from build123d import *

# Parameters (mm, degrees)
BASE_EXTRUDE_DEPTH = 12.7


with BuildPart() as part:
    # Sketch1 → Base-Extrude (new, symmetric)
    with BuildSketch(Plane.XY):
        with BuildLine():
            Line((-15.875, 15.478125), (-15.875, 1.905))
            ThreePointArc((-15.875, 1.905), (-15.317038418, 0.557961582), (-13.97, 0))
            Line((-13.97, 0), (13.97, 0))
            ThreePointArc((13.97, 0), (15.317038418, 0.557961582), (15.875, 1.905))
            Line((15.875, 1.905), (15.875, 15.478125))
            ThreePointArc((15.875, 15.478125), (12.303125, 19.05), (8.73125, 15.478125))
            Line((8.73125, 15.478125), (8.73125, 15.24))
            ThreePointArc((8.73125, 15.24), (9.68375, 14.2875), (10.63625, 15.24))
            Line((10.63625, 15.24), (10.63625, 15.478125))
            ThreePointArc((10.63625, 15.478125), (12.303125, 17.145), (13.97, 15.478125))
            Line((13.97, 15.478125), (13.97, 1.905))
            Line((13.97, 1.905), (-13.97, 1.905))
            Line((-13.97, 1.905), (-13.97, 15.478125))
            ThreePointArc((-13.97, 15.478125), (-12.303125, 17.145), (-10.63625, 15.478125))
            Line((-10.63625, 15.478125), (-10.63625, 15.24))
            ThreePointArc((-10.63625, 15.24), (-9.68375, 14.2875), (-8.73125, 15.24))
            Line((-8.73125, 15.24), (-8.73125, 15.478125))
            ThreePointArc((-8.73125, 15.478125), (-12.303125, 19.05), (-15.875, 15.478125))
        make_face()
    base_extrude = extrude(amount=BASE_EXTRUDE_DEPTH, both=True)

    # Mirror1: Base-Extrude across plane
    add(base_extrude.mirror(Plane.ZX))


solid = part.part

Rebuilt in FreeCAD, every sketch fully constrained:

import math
import FreeCAD as App
import Part
import Sketcher
Q = App.Units.Quantity

doc = App.newDocument("Part")
body = doc.addObject("PartDesign::Body", "Body")

# Sketch on XY plane
sketch1 = body.newObject("Sketcher::SketchObject", "Sketch")
sketch1.AttachmentSupport = (doc.getObject("XY_Plane"), [""])
sketch1.MapMode = "FlatFace"
sketch1.addGeometry([
    Part.LineSegment(App.Vector(-15.88, 15.48, 0), App.Vector(-15.88, 1.91, 0)),  # 0
    Part.ArcOfCircle(Part.Circle(App.Vector(-13.97, 1.91, 0), App.Vector(0, 0, 1), 1.91), math.radians(-180), math.radians(-90)),  # 1
    Part.LineSegment(App.Vector(-13.97, 0, 0), App.Vector(13.97, 0, 0)),  # 2
    Part.ArcOfCircle(Part.Circle(App.Vector(13.97, 1.91, 0), App.Vector(0, 0, 1), 1.91), math.radians(-90), math.radians(0)),  # 3
    Part.LineSegment(App.Vector(15.88, 1.91, 0), App.Vector(15.88, 15.48, 0)),  # 4
    Part.ArcOfCircle(Part.Circle(App.Vector(12.3, 15.48, 0), App.Vector(0, 0, 1), 3.57), math.radians(0), math.radians(180)),  # 5
    Part.LineSegment(App.Vector(8.73, 15.48, 0), App.Vector(8.73, 15.24, 0)),  # 6
    Part.ArcOfCircle(Part.Circle(App.Vector(9.68, 15.24, 0), App.Vector(0, 0, 1), 0.95), math.radians(180), math.radians(360)),  # 7
    Part.LineSegment(App.Vector(10.64, 15.24, 0), App.Vector(10.64, 15.48, 0)),  # 8
    Part.ArcOfCircle(Part.Circle(App.Vector(12.3, 15.48, 0), App.Vector(0, 0, 1), 1.67), math.radians(0), math.radians(180)),  # 9
    Part.LineSegment(App.Vector(13.97, 15.48, 0), App.Vector(13.97, 1.91, 0)),  # 10
    Part.LineSegment(App.Vector(13.97, 1.91, 0), App.Vector(-13.97, 1.91, 0)),  # 11
    Part.LineSegment(App.Vector(-13.97, 1.91, 0), App.Vector(-13.97, 15.48, 0)),  # 12
    Part.ArcOfCircle(Part.Circle(App.Vector(-12.3, 15.48, 0), App.Vector(0, 0, 1), 1.67), math.radians(0), math.radians(180)),  # 13
    Part.LineSegment(App.Vector(-10.64, 15.48, 0), App.Vector(-10.64, 15.24, 0)),  # 14
    Part.ArcOfCircle(Part.Circle(App.Vector(-9.68, 15.24, 0), App.Vector(0, 0, 1), 0.95), math.radians(180), math.radians(360)),  # 15
    Part.LineSegment(App.Vector(-8.73, 15.24, 0), App.Vector(-8.73, 15.48, 0)),  # 16
    Part.ArcOfCircle(Part.Circle(App.Vector(-12.3, 15.48, 0), App.Vector(0, 0, 1), 3.57), math.radians(0), math.radians(180)),  # 17
], False)
sketch1.addConstraint([
    Sketcher.Constraint("Tangent", 0, 2, 1, 1),
    Sketcher.Constraint("Tangent", 1, 2, 2, 1),
    Sketcher.Constraint("Tangent", 2, 2, 3, 1),
    Sketcher.Constraint("Tangent", 3, 2, 4, 1),
    Sketcher.Constraint("Tangent", 4, 2, 5, 1),
    Sketcher.Constraint("Tangent", 5, 2, 6, 1),
    Sketcher.Constraint("Tangent", 6, 2, 7, 1),
    Sketcher.Constraint("Tangent", 7, 2, 8, 1),
    Sketcher.Constraint("Tangent", 8, 2, 9, 2),
    Sketcher.Constraint("Tangent", 9, 1, 10, 1),
    Sketcher.Constraint("Coincident", 10, 2, 11, 1),
    Sketcher.Constraint("Coincident", 11, 2, 12, 1),
    Sketcher.Constraint("Tangent", 12, 2, 13, 2),
    Sketcher.Constraint("Tangent", 13, 1, 14, 1),
    Sketcher.Constraint("Tangent", 14, 2, 15, 1),
    Sketcher.Constraint("Tangent", 15, 2, 16, 1),
    Sketcher.Constraint("Tangent", 16, 2, 17, 1),
    Sketcher.Constraint("Tangent", 17, 2, 0, 1),
    Sketcher.Constraint("Vertical", 0),
    Sketcher.Constraint("Horizontal", 2),
    Sketcher.Constraint("Vertical", 4),
    Sketcher.Constraint("Vertical", 6),
    Sketcher.Constraint("Vertical", 8),
    Sketcher.Constraint("Vertical", 10),
    Sketcher.Constraint("Horizontal", 11),
    Sketcher.Constraint("Vertical", 12),
    Sketcher.Constraint("Vertical", 14),
    Sketcher.Constraint("Vertical", 16),
    Sketcher.Constraint("Coincident", 9, 3, 5, 3),
    Sketcher.Constraint("Coincident", 17, 3, 13, 3),
    Sketcher.Constraint("Coincident", 10, 2, 3, 3),
    Sketcher.Constraint("Coincident", 11, 2, 1, 3),
    Sketcher.Constraint("Equal", 9, 13),
    Sketcher.Constraint("Symmetric", 1, 2, 2, 2, -1, 1),
    Sketcher.Constraint("Horizontal", 9, 3, 13, 3),
    Sketcher.Constraint("Horizontal", 7, 3, 15, 3),
    Sketcher.Constraint("DistanceX", 2, 1, 2, 2, Q("1.1 in")),
    Sketcher.Constraint("Radius", 1, Q("0.075 in")),
    Sketcher.Constraint("Radius", 5, Q("0.140625 in")),
    Sketcher.Constraint("DistanceY", -1, 1, 7, 3, Q("0.6 in")),
    Sketcher.Constraint("DistanceY", -1, 1, 5, 3, Q("0.609375 in")),
])
pad1 = body.newObject("PartDesign::Pad", "Pad")
pad1.Profile = sketch1
pad1.Length = Q("1 in")
pad1.Midplane = True
doc.recompute()

mirrored = body.newObject("PartDesign::Mirrored", "Mirrored")
mirrored.Originals = [pad1]
mirrored.MirrorPlane = (doc.getObject("XZ_Plane"), [""])
body.Tip = mirrored

doc.recompute()
